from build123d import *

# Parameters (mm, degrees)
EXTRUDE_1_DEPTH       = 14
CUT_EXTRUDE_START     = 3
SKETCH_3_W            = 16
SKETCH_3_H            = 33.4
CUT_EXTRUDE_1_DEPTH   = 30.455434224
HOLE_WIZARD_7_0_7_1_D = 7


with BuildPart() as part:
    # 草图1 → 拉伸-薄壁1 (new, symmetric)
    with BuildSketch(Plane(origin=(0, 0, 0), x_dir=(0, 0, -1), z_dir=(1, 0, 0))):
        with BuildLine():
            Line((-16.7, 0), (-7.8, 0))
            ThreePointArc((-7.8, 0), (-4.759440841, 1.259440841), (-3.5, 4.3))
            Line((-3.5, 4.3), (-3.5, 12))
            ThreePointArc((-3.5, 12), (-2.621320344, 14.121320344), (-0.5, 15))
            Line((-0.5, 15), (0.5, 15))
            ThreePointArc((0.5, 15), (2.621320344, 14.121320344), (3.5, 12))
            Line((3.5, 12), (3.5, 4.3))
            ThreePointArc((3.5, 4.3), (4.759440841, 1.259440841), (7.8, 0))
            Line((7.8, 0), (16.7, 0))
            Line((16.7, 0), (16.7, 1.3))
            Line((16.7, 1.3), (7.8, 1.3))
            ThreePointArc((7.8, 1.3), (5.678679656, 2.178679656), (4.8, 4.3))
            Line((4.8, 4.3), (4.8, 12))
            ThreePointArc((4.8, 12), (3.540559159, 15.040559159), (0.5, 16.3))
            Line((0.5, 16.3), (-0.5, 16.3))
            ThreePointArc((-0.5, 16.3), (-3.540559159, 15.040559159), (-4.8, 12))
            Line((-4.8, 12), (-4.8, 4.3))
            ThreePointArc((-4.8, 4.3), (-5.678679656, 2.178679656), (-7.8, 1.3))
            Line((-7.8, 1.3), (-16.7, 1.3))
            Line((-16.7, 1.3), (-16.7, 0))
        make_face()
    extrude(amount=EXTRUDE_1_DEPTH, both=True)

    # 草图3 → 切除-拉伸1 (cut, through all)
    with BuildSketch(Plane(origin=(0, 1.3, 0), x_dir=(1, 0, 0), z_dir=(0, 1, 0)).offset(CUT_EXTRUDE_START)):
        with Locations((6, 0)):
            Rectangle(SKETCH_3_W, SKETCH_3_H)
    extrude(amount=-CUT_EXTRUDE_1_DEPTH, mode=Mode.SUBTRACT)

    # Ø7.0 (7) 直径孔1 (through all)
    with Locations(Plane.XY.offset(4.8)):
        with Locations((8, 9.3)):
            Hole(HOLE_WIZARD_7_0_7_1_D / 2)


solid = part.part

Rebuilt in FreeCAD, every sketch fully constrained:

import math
import FreeCAD as App
import Part
import Sketcher

doc = App.newDocument("Part")
body = doc.addObject("PartDesign::Body", "Body")

# Sketch on YZ plane
sketch1 = body.newObject("Sketcher::SketchObject", "Sketch")
sketch1.AttachmentSupport = (doc.getObject("YZ_Plane"), [""])
sketch1.MapMode = "FlatFace"
sketch1.addGeometry(Part.LineSegment(App.Vector(0, 16.7, 0), App.Vector(0, 7.8, 0)), False)
sketch1.addGeometry(Part.ArcOfCircle(Part.Circle(App.Vector(4.3, 7.8, 0), App.Vector(0, 0, 1), 4.3), math.radians(180), math.radians(270)), False)
sketch1.addGeometry(Part.LineSegment(App.Vector(4.3, 3.5, 0), App.Vector(12, 3.5, 0)), False)
sketch1.addGeometry(Part.ArcOfCircle(Part.Circle(App.Vector(12, 0.5, 0), App.Vector(0, 0, 1), 3), math.radians(0), math.radians(90)), False)
sketch1.addGeometry(Part.LineSegment(App.Vector(15, 0.5, 0), App.Vector(15, -0.5, 0)), False)
sketch1.addGeometry(Part.ArcOfCircle(Part.Circle(App.Vector(12, -0.5, 0), App.Vector(0, 0, 1), 3), math.radians(-90), math.radians(0)), False)
sketch1.addGeometry(Part.LineSegment(App.Vector(12, -3.5, 0), App.Vector(4.3, -3.5, 0)), False)
sketch1.addGeometry(Part.ArcOfCircle(Part.Circle(App.Vector(4.3, -7.8, 0), App.Vector(0, 0, 1), 4.3), math.radians(90), math.radians(180)), False)
sketch1.addGeometry(Part.LineSegment(App.Vector(0, -7.8, 0), App.Vector(0, -16.7, 0)), False)
sketch1.addGeometry(Part.LineSegment(App.Vector(0, -16.7, 0), App.Vector(1.3, -16.7, 0)), False)
sketch1.addGeometry(Part.LineSegment(App.Vector(1.3, -16.7, 0), App.Vector(1.3, -7.8, 0)), False)
sketch1.addGeometry(Part.ArcOfCircle(Part.Circle(App.Vector(4.3, -7.8, 0), App.Vector(0, 0, 1), 3), math.radians(90), math.radians(180)), False)
sketch1.addGeometry(Part.LineSegment(App.Vector(4.3, -4.8, 0), App.Vector(12, -4.8, 0)), False)
sketch1.addGeometry(Part.ArcOfCircle(Part.Circle(App.Vector(12, -0.5, 0), App.Vector(0, 0, 1), 4.3), math.radians(-90), math.radians(0)), False)
sketch1.addGeometry(Part.LineSegment(App.Vector(16.3, -0.5, 0), App.Vector(16.3, 0.5, 0)), False)
sketch1.addGeometry(Part.ArcOfCircle(Part.Circle(App.Vector(12, 0.5, 0), App.Vector(0, 0, 1), 4.3), math.radians(0), math.radians(90)), False)
sketch1.addGeometry(Part.LineSegment(App.Vector(12, 4.8, 0), App.Vector(4.3, 4.8, 0)), False)
sketch1.addGeometry(Part.ArcOfCircle(Part.Circle(App.Vector(4.3, 7.8, 0), App.Vector(0, 0, 1), 3), math.radians(180), math.radians(270)), False)
sketch1.addGeometry(Part.LineSegment(App.Vector(1.3, 7.8, 0), App.Vector(1.3, 16.7, 0)), False)
sketch1.addGeometry(Part.LineSegment(App.Vector(1.3, 16.7, 0), App.Vector(0, 16.7, 0)), False)
sketch1.addConstraint(Sketcher.Constraint("Tangent", 0, 2, 1, 1))
sketch1.addConstraint(Sketcher.Constraint("Tangent", 1, 2, 2, 1))
sketch1.addConstraint(Sketcher.Constraint("Tangent", 2, 2, 3, 2))
sketch1.addConstraint(Sketcher.Constraint("Tangent", 3, 1, 4, 1))
sketch1.addConstraint(Sketcher.Constraint("Tangent", 4, 2, 5, 2))
sketch1.addConstraint(Sketcher.Constraint("Tangent", 5, 1, 6, 1))
sketch1.addConstraint(Sketcher.Constraint("Tangent", 6, 2, 7, 1))
sketch1.addConstraint(Sketcher.Constraint("Tangent", 7, 2, 8, 1))
sketch1.addConstraint(Sketcher.Constraint("Coincident", 8, 2, 9, 1))
sketch1.addConstraint(Sketcher.Constraint("Coincident", 9, 2, 10, 1))
sketch1.addConstraint(Sketcher.Constraint("Tangent", 10, 2, 11, 2))
sketch1.addConstraint(Sketcher.Constraint("Tangent", 11, 1, 12, 1))
sketch1.addConstraint(Sketcher.Constraint("Tangent", 12, 2, 13, 1))
sketch1.addConstraint(Sketcher.Constraint("Tangent", 13, 2, 14, 1))
sketch1.addConstraint(Sketcher.Constraint("Tangent", 14, 2, 15, 1))
sketch1.addConstraint(Sketcher.Constraint("Tangent", 15, 2, 16, 1))
sketch1.addConstraint(Sketcher.Constraint("Tangent", 16, 2, 17, 2))
sketch1.addConstraint(Sketcher.Constraint("Tangent", 17, 1, 18, 1))
sketch1.addConstraint(Sketcher.Constraint("Coincident", 18, 2, 19, 1))
sketch1.addConstraint(Sketcher.Constraint("Coincident", 19, 2, 0, 1))
sketch1.addConstraint(Sketcher.Constraint("Vertical", 0))
sketch1.addConstraint(Sketcher.Constraint("Horizontal", 2))
sketch1.addConstraint(Sketcher.Constraint("Vertical", 4))
sketch1.addConstraint(Sketcher.Constraint("Horizontal", 6))
sketch1.addConstraint(Sketcher.Constraint("Vertical", 8))
sketch1.addConstraint(Sketcher.Constraint("Horizontal", 9))
sketch1.addConstraint(Sketcher.Constraint("Vertical", 10))
sketch1.addConstraint(Sketcher.Constraint("Horizontal", 12))
sketch1.addConstraint(Sketcher.Constraint("Vertical", 14))
sketch1.addConstraint(Sketcher.Constraint("Horizontal", 16))
sketch1.addConstraint(Sketcher.Constraint("Vertical", 18))
sketch1.addConstraint(Sketcher.Constraint("Horizontal", 19))
sketch1.addConstraint(Sketcher.Constraint("Coincident", 11, 3, 7, 3))
sketch1.addConstraint(Sketcher.Constraint("Coincident", 13, 3, 5, 3))
sketch1.addConstraint(Sketcher.Constraint("Coincident", 15, 3, 3, 3))
sketch1.addConstraint(Sketcher.Constraint("Coincident", 17, 3, 1, 3))
sketch1.addConstraint(Sketcher.Constraint("Equal", 3, 5))
sketch1.addConstraint(Sketcher.Constraint("Equal", 1, 7))
sketch1.addConstraint(Sketcher.Constraint("Equal", 5, 11))
sketch1.addConstraint(Sketcher.Constraint("Symmetric", 0, 2, 7, 2, -1, 1))
sketch1.addConstraint(Sketcher.Constraint("Symmetric", 9, 2, 18, 2, -1))
sketch1.addConstraint(Sketcher.Constraint("Radius", 3, 3.0))
sketch1.addConstraint(Sketcher.Constraint("Radius", 1, 4.3))
sketch1.addConstraint(Sketcher.Constraint("DistanceY", 4, 2, 4, 1, 1.0))
sketch1.addConstraint(Sketcher.Constraint("DistanceX", 2, 1, 2, 2, 7.7))
sketch1.addConstraint(Sketcher.Constraint("DistanceY", 0, 2, 0, 1, 8.9))
pad1 = body.newObject("PartDesign::Pad", "Pad")
pad1.Profile = sketch1
pad1.Length = 28
pad1.Midplane = True

# Sketch on XZ plane
sketch2 = body.newObject("Sketcher::SketchObject", "Sketch001")
sketch2.AttachmentSupport = (doc.getObject("XZ_Plane"), [""])
sketch2.MapMode = "FlatFace"
sketch2.AttachmentOffset = App.Placement(App.Vector(0, 0, -4.3), App.Rotation())
sketch2.addGeometry(Part.LineSegment(App.Vector(-2, -17, 0), App.Vector(-2, 17, 0)), False)
sketch2.addGeometry(Part.LineSegment(App.Vector(-2, 17, 0), App.Vector(14, 17, 0)), False)
sketch2.addGeometry(Part.LineSegment(App.Vector(14, 17, 0), App.Vector(14, -17, 0)), False)
sketch2.addGeometry(Part.LineSegment(App.Vector(14, -17, 0), App.Vector(-2, -17, 0)), False)
sketch2.addConstraint(Sketcher.Constraint("Coincident", 0, 2, 1, 1))
sketch2.addConstraint(Sketcher.Constraint("Coincident", 1, 2, 2, 1))
sketch2.addConstraint(Sketcher.Constraint("Coincident", 2, 2, 3, 1))
sketch2.addConstraint(Sketcher.Constraint("Coincident", 3, 2, 0, 1))
sketch2.addConstraint(Sketcher.Constraint("Vertical", 0))
sketch2.addConstraint(Sketcher.Constraint("Horizontal", 1))
sketch2.addConstraint(Sketcher.Constraint("Vertical", 2))
sketch2.addConstraint(Sketcher.Constraint("Horizontal", 3))
sketch2.addConstraint(Sketcher.Constraint("DistanceX", 1, 1, 1, 2, 16.0))
sketch2.addConstraint(Sketcher.Constraint("DistanceY", 0, 1, 0, 2, 33.4))
sketch2.addConstraint(Sketcher.Constraint("DistanceX", 0, 2, -1, 1, 2.0))
sketch2.addConstraint(Sketcher.Constraint("DistanceY", -1, 1, 0, 2, 16.7))
pocket1 = body.newObject("PartDesign::Pocket", "Pocket")
pocket1.Profile = sketch2
pocket1.Type = "ThroughAll"
pocket1.Reversed = True

# Sketch on XY plane
sketch3 = body.newObject("Sketcher::SketchObject", "Sketch002")
sketch3.AttachmentSupport = (doc.getObject("XY_Plane"), [""])
sketch3.MapMode = "FlatFace"
sketch3.AttachmentOffset = App.Placement(App.Vector(0, 0, 4.8), App.Rotation())
sketch3.addGeometry(Part.Circle(App.Vector(8, 9.3, 0), App.Vector(0, 0, 1), 3.5), False)
sketch3.addConstraint(Sketcher.Constraint("Diameter", 0, 7.0))
sketch3.addConstraint(Sketcher.Constraint("DistanceX", -1, 1, 0, 3, 8.0))
sketch3.addConstraint(Sketcher.Constraint("DistanceY", -1, 1, 0, 3, 9.3))
doc.recompute()
hole = body.newObject("PartDesign::Hole", "Hole")
hole.Profile = sketch3
hole.ThreadType = "None"
hole.Diameter = 7
hole.DepthType = "ThroughAll"

doc.recompute()
